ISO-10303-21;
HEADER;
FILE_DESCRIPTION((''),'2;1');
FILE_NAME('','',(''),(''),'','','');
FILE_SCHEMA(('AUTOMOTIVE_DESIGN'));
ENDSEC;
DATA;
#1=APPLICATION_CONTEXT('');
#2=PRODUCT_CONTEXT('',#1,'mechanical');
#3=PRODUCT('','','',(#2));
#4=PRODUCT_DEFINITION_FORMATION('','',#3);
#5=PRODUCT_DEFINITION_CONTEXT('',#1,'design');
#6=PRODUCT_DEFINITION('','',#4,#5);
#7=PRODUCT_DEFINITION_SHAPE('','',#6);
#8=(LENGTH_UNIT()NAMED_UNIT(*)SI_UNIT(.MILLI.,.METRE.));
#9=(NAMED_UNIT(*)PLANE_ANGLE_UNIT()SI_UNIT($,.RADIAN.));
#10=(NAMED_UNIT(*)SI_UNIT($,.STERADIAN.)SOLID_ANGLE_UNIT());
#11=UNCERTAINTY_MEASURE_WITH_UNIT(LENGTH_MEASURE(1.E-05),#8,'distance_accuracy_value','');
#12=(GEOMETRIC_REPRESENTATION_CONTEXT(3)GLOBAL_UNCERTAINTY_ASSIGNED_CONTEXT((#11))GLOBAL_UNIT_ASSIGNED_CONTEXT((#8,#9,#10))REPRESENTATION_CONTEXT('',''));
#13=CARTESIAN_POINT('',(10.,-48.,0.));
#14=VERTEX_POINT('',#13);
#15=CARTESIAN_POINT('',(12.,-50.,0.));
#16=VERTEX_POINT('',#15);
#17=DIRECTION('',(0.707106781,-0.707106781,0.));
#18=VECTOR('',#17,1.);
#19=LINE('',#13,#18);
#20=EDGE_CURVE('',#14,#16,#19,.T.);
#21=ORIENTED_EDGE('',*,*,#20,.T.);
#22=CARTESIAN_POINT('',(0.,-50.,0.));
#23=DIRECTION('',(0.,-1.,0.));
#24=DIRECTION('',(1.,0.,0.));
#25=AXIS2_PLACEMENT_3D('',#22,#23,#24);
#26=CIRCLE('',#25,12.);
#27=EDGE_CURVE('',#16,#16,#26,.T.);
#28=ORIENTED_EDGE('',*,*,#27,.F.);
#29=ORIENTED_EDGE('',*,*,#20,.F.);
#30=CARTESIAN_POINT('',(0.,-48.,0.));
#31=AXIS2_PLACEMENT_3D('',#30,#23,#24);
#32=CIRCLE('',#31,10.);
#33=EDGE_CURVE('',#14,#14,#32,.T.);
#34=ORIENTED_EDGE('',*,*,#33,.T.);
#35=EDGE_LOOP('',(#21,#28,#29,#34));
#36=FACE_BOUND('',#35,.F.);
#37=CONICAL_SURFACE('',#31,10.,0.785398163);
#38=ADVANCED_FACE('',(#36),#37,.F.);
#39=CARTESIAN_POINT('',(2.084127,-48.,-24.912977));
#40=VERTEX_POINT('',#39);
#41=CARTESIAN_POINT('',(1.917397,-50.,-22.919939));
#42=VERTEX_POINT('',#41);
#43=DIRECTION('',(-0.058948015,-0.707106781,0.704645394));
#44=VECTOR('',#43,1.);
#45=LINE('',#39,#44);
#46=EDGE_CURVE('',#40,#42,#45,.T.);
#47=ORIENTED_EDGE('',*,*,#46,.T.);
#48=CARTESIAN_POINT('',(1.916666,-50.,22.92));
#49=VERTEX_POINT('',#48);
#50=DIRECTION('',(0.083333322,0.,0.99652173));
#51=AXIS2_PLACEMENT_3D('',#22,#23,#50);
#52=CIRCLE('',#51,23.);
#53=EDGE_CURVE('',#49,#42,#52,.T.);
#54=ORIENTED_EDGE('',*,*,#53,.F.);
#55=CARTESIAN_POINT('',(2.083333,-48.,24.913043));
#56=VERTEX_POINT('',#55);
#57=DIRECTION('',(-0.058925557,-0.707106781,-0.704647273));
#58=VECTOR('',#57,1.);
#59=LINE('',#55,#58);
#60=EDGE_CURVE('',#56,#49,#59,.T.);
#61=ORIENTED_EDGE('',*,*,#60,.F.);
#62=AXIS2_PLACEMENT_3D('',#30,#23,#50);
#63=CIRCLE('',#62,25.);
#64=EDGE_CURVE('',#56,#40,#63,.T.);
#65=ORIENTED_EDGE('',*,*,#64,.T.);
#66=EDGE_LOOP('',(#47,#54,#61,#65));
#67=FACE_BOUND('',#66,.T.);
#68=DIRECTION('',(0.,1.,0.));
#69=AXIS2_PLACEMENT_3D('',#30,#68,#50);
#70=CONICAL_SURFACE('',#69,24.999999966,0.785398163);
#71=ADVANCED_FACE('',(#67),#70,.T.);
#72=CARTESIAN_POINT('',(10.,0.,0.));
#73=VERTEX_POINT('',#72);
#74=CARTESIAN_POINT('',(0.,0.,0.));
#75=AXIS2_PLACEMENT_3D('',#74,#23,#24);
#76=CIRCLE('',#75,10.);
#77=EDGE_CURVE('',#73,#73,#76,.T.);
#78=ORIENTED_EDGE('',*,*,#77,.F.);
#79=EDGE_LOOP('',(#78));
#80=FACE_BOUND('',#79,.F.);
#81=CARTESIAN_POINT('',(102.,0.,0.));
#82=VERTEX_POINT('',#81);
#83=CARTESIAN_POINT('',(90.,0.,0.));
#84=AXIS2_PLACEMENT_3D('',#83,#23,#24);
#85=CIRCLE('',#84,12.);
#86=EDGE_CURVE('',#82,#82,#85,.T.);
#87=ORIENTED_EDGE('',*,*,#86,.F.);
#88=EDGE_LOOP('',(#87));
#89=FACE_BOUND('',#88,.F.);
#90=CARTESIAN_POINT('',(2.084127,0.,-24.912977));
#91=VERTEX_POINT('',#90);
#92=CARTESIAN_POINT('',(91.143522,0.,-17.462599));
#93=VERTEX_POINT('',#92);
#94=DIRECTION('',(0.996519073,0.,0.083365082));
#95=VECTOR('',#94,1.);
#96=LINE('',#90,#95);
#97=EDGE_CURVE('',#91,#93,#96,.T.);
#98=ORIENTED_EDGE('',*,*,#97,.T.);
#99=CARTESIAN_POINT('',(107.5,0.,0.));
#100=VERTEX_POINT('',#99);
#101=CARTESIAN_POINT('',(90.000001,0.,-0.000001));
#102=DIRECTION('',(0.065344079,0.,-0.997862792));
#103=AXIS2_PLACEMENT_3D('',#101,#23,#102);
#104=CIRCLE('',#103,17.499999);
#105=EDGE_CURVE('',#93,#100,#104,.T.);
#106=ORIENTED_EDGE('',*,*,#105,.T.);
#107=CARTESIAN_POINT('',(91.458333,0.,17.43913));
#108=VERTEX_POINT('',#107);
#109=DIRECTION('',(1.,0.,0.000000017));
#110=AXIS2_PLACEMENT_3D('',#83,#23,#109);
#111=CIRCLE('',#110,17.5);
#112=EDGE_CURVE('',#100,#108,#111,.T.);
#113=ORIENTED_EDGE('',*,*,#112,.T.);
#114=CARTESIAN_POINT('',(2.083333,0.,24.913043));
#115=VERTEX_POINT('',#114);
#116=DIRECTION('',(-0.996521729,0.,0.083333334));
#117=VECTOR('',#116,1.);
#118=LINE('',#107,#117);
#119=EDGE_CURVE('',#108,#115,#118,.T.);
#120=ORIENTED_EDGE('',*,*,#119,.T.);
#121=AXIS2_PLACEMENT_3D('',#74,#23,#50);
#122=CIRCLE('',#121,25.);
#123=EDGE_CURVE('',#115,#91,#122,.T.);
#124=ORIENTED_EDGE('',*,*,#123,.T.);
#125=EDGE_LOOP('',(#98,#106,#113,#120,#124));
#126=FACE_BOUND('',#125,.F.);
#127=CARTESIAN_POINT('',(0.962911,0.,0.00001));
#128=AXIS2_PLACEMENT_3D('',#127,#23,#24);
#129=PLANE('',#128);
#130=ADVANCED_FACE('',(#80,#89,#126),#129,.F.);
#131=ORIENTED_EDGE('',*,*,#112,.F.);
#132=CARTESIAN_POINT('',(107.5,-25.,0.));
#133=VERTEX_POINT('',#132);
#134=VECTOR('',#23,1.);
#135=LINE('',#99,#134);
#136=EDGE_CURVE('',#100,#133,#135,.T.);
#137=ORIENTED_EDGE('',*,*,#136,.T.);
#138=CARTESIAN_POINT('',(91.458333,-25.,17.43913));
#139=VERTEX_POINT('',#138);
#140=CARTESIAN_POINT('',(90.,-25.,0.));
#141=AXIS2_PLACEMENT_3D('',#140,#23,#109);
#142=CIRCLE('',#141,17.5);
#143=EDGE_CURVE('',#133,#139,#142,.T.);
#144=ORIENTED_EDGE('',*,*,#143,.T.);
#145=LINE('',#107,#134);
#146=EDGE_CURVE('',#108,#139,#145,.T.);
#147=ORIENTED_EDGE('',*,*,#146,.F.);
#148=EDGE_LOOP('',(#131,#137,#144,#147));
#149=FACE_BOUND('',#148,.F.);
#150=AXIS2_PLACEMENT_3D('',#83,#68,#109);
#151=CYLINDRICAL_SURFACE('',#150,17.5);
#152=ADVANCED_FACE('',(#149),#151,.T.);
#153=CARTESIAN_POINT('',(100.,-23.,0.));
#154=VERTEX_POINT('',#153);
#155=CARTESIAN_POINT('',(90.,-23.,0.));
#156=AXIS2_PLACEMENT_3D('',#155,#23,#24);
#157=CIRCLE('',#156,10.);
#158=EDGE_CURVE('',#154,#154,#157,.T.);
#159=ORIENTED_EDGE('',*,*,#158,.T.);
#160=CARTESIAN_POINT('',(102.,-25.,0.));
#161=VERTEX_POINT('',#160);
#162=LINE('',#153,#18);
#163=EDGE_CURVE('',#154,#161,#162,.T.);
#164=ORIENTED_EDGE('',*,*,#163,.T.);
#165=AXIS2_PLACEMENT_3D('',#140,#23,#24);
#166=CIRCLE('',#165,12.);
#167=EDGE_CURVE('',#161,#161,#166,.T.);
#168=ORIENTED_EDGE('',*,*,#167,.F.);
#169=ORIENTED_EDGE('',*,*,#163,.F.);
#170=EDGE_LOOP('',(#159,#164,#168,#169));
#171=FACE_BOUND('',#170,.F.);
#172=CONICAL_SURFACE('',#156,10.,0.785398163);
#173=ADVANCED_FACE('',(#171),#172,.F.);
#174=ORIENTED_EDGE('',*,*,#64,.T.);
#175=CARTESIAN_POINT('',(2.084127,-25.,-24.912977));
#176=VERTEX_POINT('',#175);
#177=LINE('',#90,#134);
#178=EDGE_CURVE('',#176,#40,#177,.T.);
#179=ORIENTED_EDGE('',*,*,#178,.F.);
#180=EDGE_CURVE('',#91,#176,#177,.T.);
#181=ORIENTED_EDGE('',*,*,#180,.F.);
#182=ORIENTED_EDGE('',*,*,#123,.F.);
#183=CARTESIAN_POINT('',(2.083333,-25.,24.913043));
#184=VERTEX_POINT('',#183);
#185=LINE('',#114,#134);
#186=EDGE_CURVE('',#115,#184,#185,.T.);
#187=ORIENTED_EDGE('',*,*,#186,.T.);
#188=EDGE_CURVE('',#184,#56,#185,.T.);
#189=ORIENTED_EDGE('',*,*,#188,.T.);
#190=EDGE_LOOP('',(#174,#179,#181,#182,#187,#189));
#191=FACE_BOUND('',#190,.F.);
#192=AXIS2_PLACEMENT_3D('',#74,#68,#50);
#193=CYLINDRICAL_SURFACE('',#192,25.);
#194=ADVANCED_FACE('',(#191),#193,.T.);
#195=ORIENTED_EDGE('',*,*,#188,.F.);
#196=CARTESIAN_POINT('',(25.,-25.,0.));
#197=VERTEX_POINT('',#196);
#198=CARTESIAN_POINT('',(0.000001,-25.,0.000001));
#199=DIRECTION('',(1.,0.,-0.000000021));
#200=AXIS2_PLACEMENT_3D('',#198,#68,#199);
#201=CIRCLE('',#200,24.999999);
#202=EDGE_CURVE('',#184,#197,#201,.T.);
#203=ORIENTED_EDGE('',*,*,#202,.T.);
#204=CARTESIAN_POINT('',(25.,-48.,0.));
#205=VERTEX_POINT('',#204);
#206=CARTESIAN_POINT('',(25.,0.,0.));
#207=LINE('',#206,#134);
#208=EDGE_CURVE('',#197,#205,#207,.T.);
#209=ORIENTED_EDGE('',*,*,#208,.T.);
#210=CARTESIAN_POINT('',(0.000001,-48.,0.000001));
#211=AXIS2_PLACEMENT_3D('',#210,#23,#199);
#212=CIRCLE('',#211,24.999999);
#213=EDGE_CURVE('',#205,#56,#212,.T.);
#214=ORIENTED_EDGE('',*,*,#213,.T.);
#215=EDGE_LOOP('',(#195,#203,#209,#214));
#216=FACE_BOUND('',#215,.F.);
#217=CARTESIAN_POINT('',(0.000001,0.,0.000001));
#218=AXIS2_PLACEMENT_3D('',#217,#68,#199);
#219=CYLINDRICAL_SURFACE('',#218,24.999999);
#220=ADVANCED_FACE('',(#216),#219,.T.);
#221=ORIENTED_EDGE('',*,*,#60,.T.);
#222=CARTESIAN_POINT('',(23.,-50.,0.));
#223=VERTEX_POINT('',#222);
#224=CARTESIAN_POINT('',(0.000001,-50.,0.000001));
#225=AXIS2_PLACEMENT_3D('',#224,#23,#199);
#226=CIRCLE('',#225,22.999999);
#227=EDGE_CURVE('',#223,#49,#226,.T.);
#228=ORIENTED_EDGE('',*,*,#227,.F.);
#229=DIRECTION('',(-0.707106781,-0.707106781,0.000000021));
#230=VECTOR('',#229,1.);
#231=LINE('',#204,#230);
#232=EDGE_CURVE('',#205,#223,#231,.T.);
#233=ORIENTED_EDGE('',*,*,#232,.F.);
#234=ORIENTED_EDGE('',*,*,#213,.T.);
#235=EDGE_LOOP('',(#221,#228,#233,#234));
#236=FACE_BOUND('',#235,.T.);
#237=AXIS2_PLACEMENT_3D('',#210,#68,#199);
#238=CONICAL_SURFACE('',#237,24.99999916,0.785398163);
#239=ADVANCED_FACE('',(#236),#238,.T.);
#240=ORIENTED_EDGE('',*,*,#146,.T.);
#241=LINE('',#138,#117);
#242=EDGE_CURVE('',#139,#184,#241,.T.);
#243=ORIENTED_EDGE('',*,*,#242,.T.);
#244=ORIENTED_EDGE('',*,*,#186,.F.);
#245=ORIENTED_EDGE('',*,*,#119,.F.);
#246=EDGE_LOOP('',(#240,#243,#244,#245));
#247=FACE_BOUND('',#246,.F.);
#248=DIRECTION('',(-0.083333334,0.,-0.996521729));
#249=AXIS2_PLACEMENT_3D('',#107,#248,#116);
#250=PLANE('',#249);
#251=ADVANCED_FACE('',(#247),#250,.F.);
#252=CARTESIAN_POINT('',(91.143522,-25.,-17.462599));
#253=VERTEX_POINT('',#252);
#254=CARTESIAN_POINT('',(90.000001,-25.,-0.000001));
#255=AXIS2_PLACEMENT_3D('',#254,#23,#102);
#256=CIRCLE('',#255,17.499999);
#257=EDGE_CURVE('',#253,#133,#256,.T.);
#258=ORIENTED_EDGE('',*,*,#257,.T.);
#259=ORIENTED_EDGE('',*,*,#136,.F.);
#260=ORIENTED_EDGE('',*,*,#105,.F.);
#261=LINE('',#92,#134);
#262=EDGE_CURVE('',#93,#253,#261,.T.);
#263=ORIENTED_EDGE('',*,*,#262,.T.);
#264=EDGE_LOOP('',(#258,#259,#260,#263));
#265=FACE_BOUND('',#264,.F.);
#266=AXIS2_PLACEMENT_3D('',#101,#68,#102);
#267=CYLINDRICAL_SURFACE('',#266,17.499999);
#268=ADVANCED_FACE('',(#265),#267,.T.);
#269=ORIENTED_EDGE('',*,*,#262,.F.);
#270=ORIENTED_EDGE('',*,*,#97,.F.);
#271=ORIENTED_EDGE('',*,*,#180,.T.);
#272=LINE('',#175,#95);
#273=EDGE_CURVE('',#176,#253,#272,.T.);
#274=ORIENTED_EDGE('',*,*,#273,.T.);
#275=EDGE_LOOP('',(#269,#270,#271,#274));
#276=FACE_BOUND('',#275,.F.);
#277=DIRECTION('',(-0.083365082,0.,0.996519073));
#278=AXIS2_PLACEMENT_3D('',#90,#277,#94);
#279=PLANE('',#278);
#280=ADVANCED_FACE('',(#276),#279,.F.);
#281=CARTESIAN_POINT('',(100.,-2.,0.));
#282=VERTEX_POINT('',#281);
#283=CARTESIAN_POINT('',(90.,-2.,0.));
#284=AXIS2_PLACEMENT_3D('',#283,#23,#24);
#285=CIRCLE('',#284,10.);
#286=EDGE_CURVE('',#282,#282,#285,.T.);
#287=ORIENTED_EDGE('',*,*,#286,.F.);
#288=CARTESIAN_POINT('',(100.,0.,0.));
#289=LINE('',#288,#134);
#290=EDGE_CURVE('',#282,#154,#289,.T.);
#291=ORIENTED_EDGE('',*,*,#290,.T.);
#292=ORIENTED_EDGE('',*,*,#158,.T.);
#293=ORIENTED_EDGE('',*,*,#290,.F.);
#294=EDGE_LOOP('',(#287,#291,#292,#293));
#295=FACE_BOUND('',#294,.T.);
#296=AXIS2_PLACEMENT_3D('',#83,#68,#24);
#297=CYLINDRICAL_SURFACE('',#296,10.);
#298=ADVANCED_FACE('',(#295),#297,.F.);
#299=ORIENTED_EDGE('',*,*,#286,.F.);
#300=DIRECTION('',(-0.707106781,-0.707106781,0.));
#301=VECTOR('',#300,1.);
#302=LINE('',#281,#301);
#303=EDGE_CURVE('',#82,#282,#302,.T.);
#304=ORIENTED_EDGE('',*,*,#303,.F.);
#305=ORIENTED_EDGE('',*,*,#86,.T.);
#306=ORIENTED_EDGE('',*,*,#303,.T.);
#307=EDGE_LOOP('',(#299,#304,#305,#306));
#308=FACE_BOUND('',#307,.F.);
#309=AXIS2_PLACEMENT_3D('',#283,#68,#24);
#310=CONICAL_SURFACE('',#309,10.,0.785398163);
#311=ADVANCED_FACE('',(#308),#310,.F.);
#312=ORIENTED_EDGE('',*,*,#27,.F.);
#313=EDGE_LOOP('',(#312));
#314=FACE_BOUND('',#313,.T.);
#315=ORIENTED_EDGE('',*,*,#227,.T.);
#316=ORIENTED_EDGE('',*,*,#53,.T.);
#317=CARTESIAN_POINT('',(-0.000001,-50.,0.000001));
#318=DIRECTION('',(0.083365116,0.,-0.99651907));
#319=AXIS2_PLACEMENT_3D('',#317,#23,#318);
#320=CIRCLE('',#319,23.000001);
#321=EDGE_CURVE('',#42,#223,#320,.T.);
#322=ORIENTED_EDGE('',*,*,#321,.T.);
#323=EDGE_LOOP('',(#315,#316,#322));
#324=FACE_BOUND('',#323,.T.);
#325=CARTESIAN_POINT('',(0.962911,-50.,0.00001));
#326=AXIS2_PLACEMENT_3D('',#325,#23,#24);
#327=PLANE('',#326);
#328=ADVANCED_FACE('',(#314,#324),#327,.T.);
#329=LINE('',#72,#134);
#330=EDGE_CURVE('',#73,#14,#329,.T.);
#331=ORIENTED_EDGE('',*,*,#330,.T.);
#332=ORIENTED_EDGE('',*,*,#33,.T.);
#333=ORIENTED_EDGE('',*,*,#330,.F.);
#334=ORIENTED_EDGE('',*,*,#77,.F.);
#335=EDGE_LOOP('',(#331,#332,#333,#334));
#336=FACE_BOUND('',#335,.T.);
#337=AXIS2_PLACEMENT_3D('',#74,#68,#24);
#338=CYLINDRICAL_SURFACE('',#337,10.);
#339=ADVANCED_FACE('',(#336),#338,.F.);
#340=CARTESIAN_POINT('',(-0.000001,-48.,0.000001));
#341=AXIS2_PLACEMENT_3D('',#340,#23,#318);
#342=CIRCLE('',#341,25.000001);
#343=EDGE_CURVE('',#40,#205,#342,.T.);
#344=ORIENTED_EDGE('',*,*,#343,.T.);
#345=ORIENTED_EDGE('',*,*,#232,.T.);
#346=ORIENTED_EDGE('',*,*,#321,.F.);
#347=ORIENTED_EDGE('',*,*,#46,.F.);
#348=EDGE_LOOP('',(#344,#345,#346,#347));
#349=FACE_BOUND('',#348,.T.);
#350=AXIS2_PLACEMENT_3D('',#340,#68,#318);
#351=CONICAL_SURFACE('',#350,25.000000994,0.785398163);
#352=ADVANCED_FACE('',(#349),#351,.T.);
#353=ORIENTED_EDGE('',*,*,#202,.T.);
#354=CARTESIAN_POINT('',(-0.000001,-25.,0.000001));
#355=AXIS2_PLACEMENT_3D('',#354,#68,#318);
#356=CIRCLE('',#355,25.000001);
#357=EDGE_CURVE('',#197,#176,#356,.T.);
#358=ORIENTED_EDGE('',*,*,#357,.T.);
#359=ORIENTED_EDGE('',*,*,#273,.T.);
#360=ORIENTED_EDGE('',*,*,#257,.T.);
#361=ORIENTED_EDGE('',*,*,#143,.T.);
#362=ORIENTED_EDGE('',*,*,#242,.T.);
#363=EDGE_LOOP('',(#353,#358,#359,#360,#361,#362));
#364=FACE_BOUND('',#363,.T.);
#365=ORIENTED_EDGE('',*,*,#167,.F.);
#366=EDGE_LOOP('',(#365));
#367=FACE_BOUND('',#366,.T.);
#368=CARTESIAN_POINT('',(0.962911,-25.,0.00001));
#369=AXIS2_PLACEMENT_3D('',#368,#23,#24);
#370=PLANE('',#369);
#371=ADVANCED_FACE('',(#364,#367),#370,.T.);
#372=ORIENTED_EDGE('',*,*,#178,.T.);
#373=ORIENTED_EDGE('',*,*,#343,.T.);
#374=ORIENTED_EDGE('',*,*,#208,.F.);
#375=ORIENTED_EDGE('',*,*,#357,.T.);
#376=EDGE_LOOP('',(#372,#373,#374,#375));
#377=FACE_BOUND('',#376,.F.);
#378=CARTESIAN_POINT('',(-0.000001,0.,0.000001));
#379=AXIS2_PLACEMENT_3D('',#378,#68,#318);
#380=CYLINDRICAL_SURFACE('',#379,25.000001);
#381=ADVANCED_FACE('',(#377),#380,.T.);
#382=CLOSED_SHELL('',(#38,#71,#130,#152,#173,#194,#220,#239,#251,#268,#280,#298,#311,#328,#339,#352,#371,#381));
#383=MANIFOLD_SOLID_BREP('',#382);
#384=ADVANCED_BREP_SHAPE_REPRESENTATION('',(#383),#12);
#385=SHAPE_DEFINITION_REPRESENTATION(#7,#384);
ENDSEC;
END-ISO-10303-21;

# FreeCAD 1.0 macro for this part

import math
import FreeCAD as App
import Part
import Sketcher
from FreeCAD import Vector


def edges_at(feature, points):
    """Names of the edges that pass closest to the given points."""
    edges = feature.Shape.Edges
    near = lambda p: min(range(len(edges)), key=lambda i: edges[i].distToShape(Part.Vertex(*p))[0])
    return sorted({f"Edge{near(p) + 1}" for p in points})

doc = App.newDocument("Part")
params = doc.addObject("Spreadsheet::Sheet", "Params")
for row, (alias, value) in enumerate([
    ("sketch1_diameter", "20 mm"),
    ("sketch1_radius", "25 mm"),
    ("sketch1_radius2", "17.499999 mm"),
    ("pad1_length", "25 mm"),
    ("sketch2_diameter", "20 mm"),
    ("sketch2_radius", "25.000001 mm"),
    ("pad2_length", "50 mm"),
    ("chamfer_size", "2 mm"),
], start=1):
    params.set(f"A{row}", alias)
    params.set(f"B{row}", "=" + value)
    params.setAlias(f"B{row}", alias)

body = doc.addObject("PartDesign::Body", "Body")

sketch1 = doc.addObject("Sketcher::SketchObject", "Sketch")
body.addObject(sketch1)
sketch1.AttachmentSupport = (doc.XZ_Plane, [""])
sketch1.MapMode = "FlatFace"
sketch1.addGeometry(Part.ArcOfCircle(Part.Circle(Vector(0, 0, 0), Vector(0, 0, 1), 25), math.radians(85), math.radians(275)), False)
sketch1.addGeometry(Part.LineSegment(Vector(2, -25, 0), Vector(91, -17, 0)), False)
sketch1.addGeometry(Part.ArcOfCircle(Part.Circle(Vector(90, 0, 0), Vector(0, 0, 1), 17), math.radians(-86), math.radians(0)), False)
sketch1.addGeometry(Part.ArcOfCircle(Part.Circle(Vector(90, 0, 0), Vector(0, 0, 1), 18), math.radians(0), math.radians(85)), False)
sketch1.addGeometry(Part.LineSegment(Vector(91, 17, 0), Vector(2, 25, 0)), False)
sketch1.addGeometry(Part.Circle(Vector(0, 0, 0), Vector(0, 0, 1), 10), False)
sketch1.addGeometry(Part.Circle(Vector(90, 0, 0), Vector(0, 0, 1), 10), False)
sketch1.addConstraint(Sketcher.Constraint("Tangent", 0, 2, 1, 1))
sketch1.addConstraint(Sketcher.Constraint("Coincident", 1, 2, 2, 1))
sketch1.addConstraint(Sketcher.Constraint("Tangent", 2, 2, 3, 1))
sketch1.addConstraint(Sketcher.Constraint("Tangent", 3, 2, 4, 1))
sketch1.addConstraint(Sketcher.Constraint("Tangent", 4, 2, 0, 1))
sketch1.addConstraint(Sketcher.Constraint("Coincident", 0, 3, -1, 1))
sketch1.addConstraint(Sketcher.Constraint("Coincident", 5, 3, -1, 1))
sketch1.addConstraint(Sketcher.Constraint("Coincident", 6, 3, 2, 3))
sketch1.addConstraint(Sketcher.Constraint("Equal", 2, 3))
sketch1.addConstraint(Sketcher.Constraint("Equal", 5, 6))
sketch1.addConstraint(Sketcher.Constraint("PointOnObject", 2, 3, -1))
sketch1.addConstraint(Sketcher.Constraint("PointOnObject", 2, 2, -1))
sketch1.addConstraint(Sketcher.Constraint("Diameter", 5, 20.0))
sketch1.addConstraint(Sketcher.Constraint("Radius", 0, 25.0))
sketch1.addConstraint(Sketcher.Constraint("Radius", 2, 17.499999))
sketch1.addConstraint(Sketcher.Constraint("DistanceX", -1, 1, 2, 3, 90.000001))
sketch1.addConstraint(Sketcher.Constraint("DistanceY", 1, 2, -1, 1, 17.462599))
sketch1.setExpression("Constraints[12]", "Params.sketch1_diameter")
sketch1.setExpression("Constraints[13]", "Params.sketch1_radius")
sketch1.setExpression("Constraints[14]", "Params.sketch1_radius2")
pad1 = doc.addObject("PartDesign::Pad", "Pad")
body.addObject(pad1)
pad1.Profile = sketch1
pad1.setExpression("Length", "Params.pad1_length")

sketch2 = doc.addObject("Sketcher::SketchObject", "Sketch001")
body.addObject(sketch2)
sketch2.AttachmentSupport = (doc.XZ_Plane, [""])
sketch2.MapMode = "FlatFace"
sketch2.addGeometry(Part.ArcOfCircle(Part.Circle(Vector(0, 0, 0), Vector(0, 0, 1), 25), math.radians(-85), math.radians(0)), False)
sketch2.addGeometry(Part.ArcOfCircle(Part.Circle(Vector(0, 0, 0), Vector(0, 0, 1), 25), math.radians(0), math.radians(85)), False)
sketch2.addGeometry(Part.ArcOfCircle(Part.Circle(Vector(0, 0, 0), Vector(0, 0, 1), 25), math.radians(85), math.radians(275)), False)
sketch2.addGeometry(Part.Circle(Vector(0, 0, 0), Vector(0, 0, 1), 10), False)
sketch2.addConstraint(Sketcher.Constraint("Tangent", 0, 2, 1, 1))
sketch2.addConstraint(Sketcher.Constraint("Tangent", 1, 2, 2, 1))
sketch2.addConstraint(Sketcher.Constraint("Tangent", 2, 2, 0, 1))
sketch2.addConstraint(Sketcher.Constraint("Coincident", 0, 3, -1, 1))
sketch2.addConstraint(Sketcher.Constraint("Coincident", 3, 3, -1, 1))
sketch2.addConstraint(Sketcher.Constraint("PointOnObject", 0, 2, -1))
sketch2.addConstraint(Sketcher.Constraint("Diameter", 3, 20.0))
sketch2.addConstraint(Sketcher.Constraint("Radius", 0, 25.000001))
sketch2.addConstraint(Sketcher.Constraint("DistanceX", -1, 1, 1, 2, 2.083333))
sketch2.addConstraint(Sketcher.Constraint("DistanceX", -1, 1, 2, 2, 2.084127))
sketch2.setExpression("Constraints[6]", "Params.sketch2_diameter")
sketch2.setExpression("Constraints[7]", "Params.sketch2_radius")
pad2 = doc.addObject("PartDesign::Pad", "Pad001")
body.addObject(pad2)
pad2.Profile = sketch2
pad2.setExpression("Length", "Params.pad2_length")
doc.recompute()

chamfer = doc.addObject("PartDesign::Chamfer", "Chamfer")
body.addObject(chamfer)
chamfer.Base = (pad2, edges_at(pad2, [
    (-25, -50, 0),
    (-10, -50, 0),
    (100, -12.5, 0),
    (80, 0, 0),
    (80, -25, 0),
]))
chamfer.setExpression("Size", "Params.chamfer_size")

doc.recompute()
